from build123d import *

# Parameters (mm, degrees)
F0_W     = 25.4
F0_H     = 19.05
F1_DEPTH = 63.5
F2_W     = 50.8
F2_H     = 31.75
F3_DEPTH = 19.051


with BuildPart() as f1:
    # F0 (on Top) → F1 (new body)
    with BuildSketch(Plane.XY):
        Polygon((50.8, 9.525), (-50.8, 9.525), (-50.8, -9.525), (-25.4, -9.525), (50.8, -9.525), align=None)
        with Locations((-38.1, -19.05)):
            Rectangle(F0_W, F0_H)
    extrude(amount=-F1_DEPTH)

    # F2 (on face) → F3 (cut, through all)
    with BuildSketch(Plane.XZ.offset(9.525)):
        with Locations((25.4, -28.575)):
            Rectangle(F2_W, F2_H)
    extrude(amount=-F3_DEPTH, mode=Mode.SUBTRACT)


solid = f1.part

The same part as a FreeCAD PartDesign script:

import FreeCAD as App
import Part
import Sketcher

V = App.Vector
Q = App.Units.Quantity


def add_polygon(sketch, points):
    """Adds a closed chain of lines whose ends are joined by coincident constraints."""
    first, n = sketch.GeometryCount, len(points)
    for a, b in zip(points, points[1:] + points[:1]):
        sketch.addGeometry(Part.LineSegment(App.Vector(*a, 0), App.Vector(*b, 0)), False)
    for i in range(n):
        sketch.addConstraint(Sketcher.Constraint("Coincident", first + i, 2, first + (i + 1) % n, 1))

doc = App.newDocument("Part")
body = doc.addObject("PartDesign::Body", "Body")

# Sketch on XY plane
sketch1 = body.newObject("Sketcher::SketchObject", "Sketch")
sketch1.AttachmentSupport = (doc.getObject("XY_Plane"), [""])
sketch1.MapMode = "FlatFace"
add_polygon(sketch1, [(51, 10), (-51, 10), (-51, -29), (-25, -29), (-25, -10), (51, -10)])  # lines 0-5
sketch1.addConstraint([
    Sketcher.Constraint("Horizontal", 0),
    Sketcher.Constraint("Vertical", 1),
    Sketcher.Constraint("Horizontal", 2),
    Sketcher.Constraint("Vertical", 3),
    Sketcher.Constraint("Horizontal", 4),
    Sketcher.Constraint("Vertical", 5),
    Sketcher.Constraint("Symmetric", 0, 2, 4, 2, -1, 1),
    Sketcher.Constraint("Equal", 3, 5),
    Sketcher.Constraint("DistanceX", 0, 2, 0, 1, Q("4 in")),
    Sketcher.Constraint("DistanceX", 2, 1, 2, 2, Q("1 in")),
    Sketcher.Constraint("DistanceY", 1, 2, 1, 1, Q("1.5 in")),
])
pad1 = body.newObject("PartDesign::Pad", "Pad")
pad1.Profile = sketch1
pad1.Length = Q("2.5 in")
pad1.Reversed = True

# Sketch on XZ plane
sketch2 = body.newObject("Sketcher::SketchObject", "Sketch001")
sketch2.AttachmentSupport = (doc.getObject("XZ_Plane"), [""])
sketch2.MapMode = "FlatFace"
sketch2.AttachmentOffset = App.Placement(V(0, 0, 0.375 * 25.4), App.Rotation())
add_polygon(sketch2, [(0, -13), (0, -44), (51, -44), (51, -13)])  # lines 0-3
sketch2.addConstraint([
    Sketcher.Constraint("Vertical", 0),
    Sketcher.Constraint("Horizontal", 1),
    Sketcher.Constraint("Vertical", 2),
    Sketcher.Constraint("Horizontal", 3),
    Sketcher.Constraint("PointOnObject", 0, 2, -2),
    Sketcher.Constraint("DistanceX", 1, 1, 1, 2, Q("2 in")),
    Sketcher.Constraint("DistanceY", 0, 2, 0, 1, Q("1.25 in")),
    Sketcher.Constraint("DistanceY", 2, 2, -1, 1, Q("0.5 in")),
])
pocket1 = body.newObject("PartDesign::Pocket", "Pocket")
pocket1.Profile = sketch2
pocket1.Type = "ThroughAll"

doc.recompute()
